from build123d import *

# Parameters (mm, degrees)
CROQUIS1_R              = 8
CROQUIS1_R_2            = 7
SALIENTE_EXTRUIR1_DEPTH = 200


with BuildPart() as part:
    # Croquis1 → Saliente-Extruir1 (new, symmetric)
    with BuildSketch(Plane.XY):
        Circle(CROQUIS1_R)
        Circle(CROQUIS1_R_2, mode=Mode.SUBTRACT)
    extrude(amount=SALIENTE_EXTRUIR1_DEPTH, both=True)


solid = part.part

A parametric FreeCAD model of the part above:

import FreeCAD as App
import Part
import Sketcher
from FreeCAD import Vector
Q = App.Units.Quantity

doc = App.newDocument("Part")
body = doc.addObject("PartDesign::Body", "Body")

# Sketch on XY plane
sketch1 = doc.addObject("Sketcher::SketchObject", "Sketch")
body.addObject(sketch1)
sketch1.AttachmentSupport = (doc.XY_Plane, [""])
sketch1.MapMode = "FlatFace"
sketch1.addGeometry([
    Part.Circle(Vector(0, 0, 0), Vector(0, 0, 1), 8),
    Part.Circle(Vector(0, 0, 0), Vector(0, 0, 1), 7),
], False)
sketch1.addConstraint([
    Sketcher.Constraint("Coincident", 0, 3, -1, 1),
    Sketcher.Constraint("Coincident", 1, 3, -1, 1),
    Sketcher.Constraint("Diameter", 0, Q("16 mm")),
    Sketcher.Constraint("Diameter", 1, Q("14 mm")),
])
pad1 = doc.addObject("PartDesign::Pad", "Pad")
body.addObject(pad1)
pad1.Profile = sketch1
pad1.Length = 400
pad1.Midplane = True

doc.recompute()
